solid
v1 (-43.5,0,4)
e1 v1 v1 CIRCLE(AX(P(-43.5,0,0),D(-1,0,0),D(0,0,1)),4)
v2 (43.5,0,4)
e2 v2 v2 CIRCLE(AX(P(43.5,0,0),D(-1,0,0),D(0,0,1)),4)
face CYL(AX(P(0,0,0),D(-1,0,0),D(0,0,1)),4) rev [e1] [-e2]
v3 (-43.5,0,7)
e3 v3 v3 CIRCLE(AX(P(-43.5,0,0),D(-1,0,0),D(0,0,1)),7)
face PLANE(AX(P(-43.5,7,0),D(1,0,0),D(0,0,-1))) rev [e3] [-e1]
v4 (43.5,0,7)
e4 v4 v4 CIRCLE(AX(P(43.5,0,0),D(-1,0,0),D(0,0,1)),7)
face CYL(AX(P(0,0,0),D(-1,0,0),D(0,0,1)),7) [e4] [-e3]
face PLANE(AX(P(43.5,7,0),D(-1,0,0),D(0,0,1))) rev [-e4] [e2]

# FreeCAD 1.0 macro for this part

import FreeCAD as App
import Part
import Sketcher
from FreeCAD import Vector


def add_polygon(sketch, points):
    """Adds a closed chain of lines whose ends are joined by coincident constraints."""
    first, n = sketch.GeometryCount, len(points)
    for a, b in zip(points, points[1:] + points[:1]):
        sketch.addGeometry(Part.LineSegment(App.Vector(*a, 0), App.Vector(*b, 0)), False)
    for i in range(n):
        sketch.addConstraint(Sketcher.Constraint("Coincident", first + i, 2, first + (i + 1) % n, 1))

doc = App.newDocument("Part")
params = doc.addObject("Spreadsheet::Sheet", "Params")
for row, (alias, value) in enumerate([
    ("sketch1_width", "87 mm"),
    ("sketch1_height", "3 mm"),
    ("revolution_angle", "360 deg"),
], start=1):
    params.set(f"A{row}", alias)
    params.set(f"B{row}", "=" + value)
    params.setAlias(f"B{row}", alias)

body = doc.addObject("PartDesign::Body", "Body")

# Sketch on XY plane
sketch1 = body.newObject("Sketcher::SketchObject", "Sketch")
sketch1.AttachmentSupport = (doc.getObject("XY_Plane"), [""])
sketch1.MapMode = "FlatFace"
add_polygon(sketch1, [(-43.5, 7), (-43.5, 4), (43.5, 4), (43.5, 7)])  # lines 0-3
sketch1.addConstraint([
    Sketcher.Constraint("Vertical", 0),
    Sketcher.Constraint("Horizontal", 1),
    Sketcher.Constraint("Vertical", 2),
    Sketcher.Constraint("Horizontal", 3),
    Sketcher.Constraint("DistanceX", 1, 1, 1, 2, 87.0),
    Sketcher.Constraint("DistanceY", 0, 2, 0, 1, 3.0),
    Sketcher.Constraint("DistanceY", -1, 1, 0, 2, 4.0),
    Sketcher.Constraint("DistanceX", 0, 2, -1, 1, 43.5),
])
sketch1.setExpression("Constraints[8]", "Params.sketch1_width")
sketch1.setExpression("Constraints[9]", "Params.sketch1_height")
revolution = body.newObject("PartDesign::Revolution", "Revolution")
revolution.Profile = sketch1
revolution.ReferenceAxis = (sketch1, ["H_Axis"])
revolution.setExpression("Angle", "Params.revolution_angle")

doc.recompute()
